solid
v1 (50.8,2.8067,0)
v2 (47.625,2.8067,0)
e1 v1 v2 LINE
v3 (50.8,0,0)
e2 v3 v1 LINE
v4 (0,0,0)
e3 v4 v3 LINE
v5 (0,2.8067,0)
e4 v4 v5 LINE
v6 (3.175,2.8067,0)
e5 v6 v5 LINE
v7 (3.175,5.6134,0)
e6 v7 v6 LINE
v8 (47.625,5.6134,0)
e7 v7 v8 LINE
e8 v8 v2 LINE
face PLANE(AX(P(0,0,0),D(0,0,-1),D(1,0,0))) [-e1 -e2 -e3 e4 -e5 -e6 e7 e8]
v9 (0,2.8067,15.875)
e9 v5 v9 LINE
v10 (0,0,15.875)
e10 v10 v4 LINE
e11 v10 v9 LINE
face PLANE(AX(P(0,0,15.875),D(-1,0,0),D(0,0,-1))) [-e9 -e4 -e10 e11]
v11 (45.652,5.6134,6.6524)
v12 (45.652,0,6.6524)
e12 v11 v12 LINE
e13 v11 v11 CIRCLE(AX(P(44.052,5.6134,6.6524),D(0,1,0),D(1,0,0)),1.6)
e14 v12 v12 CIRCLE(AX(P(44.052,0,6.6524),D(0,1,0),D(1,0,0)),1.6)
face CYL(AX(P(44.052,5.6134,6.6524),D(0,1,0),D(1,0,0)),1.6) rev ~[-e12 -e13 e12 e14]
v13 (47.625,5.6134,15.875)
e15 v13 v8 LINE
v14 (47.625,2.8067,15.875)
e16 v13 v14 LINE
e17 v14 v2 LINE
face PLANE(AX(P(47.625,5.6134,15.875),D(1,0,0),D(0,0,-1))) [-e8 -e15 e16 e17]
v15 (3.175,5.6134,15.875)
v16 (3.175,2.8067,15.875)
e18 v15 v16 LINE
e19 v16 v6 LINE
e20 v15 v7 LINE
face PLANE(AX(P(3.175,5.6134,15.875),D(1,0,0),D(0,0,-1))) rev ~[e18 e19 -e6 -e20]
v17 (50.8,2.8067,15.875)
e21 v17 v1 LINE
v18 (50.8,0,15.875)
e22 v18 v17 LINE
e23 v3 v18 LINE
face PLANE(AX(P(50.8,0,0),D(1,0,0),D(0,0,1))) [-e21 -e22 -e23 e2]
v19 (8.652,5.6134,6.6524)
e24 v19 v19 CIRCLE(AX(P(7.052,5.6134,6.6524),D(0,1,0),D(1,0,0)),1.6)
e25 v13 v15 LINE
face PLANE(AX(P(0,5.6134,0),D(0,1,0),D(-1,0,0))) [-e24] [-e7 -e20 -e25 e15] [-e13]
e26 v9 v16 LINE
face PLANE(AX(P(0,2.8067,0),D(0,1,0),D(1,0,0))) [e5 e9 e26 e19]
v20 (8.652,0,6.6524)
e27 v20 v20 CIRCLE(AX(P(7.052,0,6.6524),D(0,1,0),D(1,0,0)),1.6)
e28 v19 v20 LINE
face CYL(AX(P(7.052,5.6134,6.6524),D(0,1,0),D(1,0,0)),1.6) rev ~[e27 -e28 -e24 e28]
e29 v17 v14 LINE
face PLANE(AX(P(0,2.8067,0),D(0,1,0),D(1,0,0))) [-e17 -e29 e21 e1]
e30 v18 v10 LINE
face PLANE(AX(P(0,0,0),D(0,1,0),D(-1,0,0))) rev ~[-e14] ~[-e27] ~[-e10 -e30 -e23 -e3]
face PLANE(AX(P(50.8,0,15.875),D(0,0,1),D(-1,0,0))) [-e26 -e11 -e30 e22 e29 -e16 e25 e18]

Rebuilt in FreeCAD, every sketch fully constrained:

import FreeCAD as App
import Part
import Sketcher
Q = App.Units.Quantity

doc = App.newDocument("Part")
params = doc.addObject("Spreadsheet::Sheet", "Params")
for row, (alias, value) in enumerate([
    ("sketch1_width", "2 in"),
    ("sketch1_height", "0.625 in"),
    ("pad1_length", "0.221 in"),
    ("pocket1_length", "1 in"),
    ("sketch3_width", "0.125 in"),
    ("sketch3_height", "0.625 in"),
    ("pocket2_length", "0.1105 in"),
], start=1):
    params.set(f"A{row}", alias)
    params.set(f"B{row}", "=" + value)
    params.setAlias(f"B{row}", alias)

body = doc.addObject("PartDesign::Body", "Body")

sketch1 = body.newObject("Sketcher::SketchObject", "Sketch")
sketch1.AttachmentSupport = (doc.getObject("XZ_Plane"), [""])
sketch1.MapMode = "FlatFace"
sketch1.addGeometry([
    Part.LineSegment(App.Vector(51, 0, 0), App.Vector(0, 0, 0)),
    Part.LineSegment(App.Vector(0, 0, 0), App.Vector(0, 16, 0)),
    Part.LineSegment(App.Vector(0, 16, 0), App.Vector(51, 16, 0)),
    Part.LineSegment(App.Vector(51, 16, 0), App.Vector(51, 0, 0)),
], False)
sketch1.addConstraint([
    Sketcher.Constraint("Coincident", 0, 2, 1, 1),
    Sketcher.Constraint("Coincident", 1, 2, 2, 1),
    Sketcher.Constraint("Coincident", 2, 2, 3, 1),
    Sketcher.Constraint("Coincident", 3, 2, 0, 1),
    Sketcher.Constraint("Horizontal", 0),
    Sketcher.Constraint("Vertical", 1),
    Sketcher.Constraint("Horizontal", 2),
    Sketcher.Constraint("Vertical", 3),
    Sketcher.Constraint("Coincident", 0, 2, -1, 1),
    Sketcher.Constraint("DistanceX", 0, 2, 0, 1, Q("2 in")),
    Sketcher.Constraint("DistanceY", 1, 1, 1, 2, Q("0.625 in")),
])
sketch1.setExpression("Constraints[9]", "Params.sketch1_width")
sketch1.setExpression("Constraints[10]", "Params.sketch1_height")
pad1 = body.newObject("PartDesign::Pad", "Pad")
pad1.Profile = sketch1
pad1.setExpression("Length", "Params.pad1_length")
pad1.Reversed = True

sketch2 = body.newObject("Sketcher::SketchObject", "Sketch001")
sketch2.AttachmentSupport = (doc.getObject("XZ_Plane"), [""])
sketch2.MapMode = "FlatFace"
sketch2.AttachmentOffset = App.Placement(App.Vector(0, 0, -0.221 * 25.4), App.Rotation())
sketch2.addGeometry([
    Part.Circle(App.Vector(7.1, 6.7, 0), App.Vector(0, 0, 1), 1.6),
    Part.Circle(App.Vector(44.1, 6.7, 0), App.Vector(0, 0, 1), 1.6),
], False)
sketch2.addConstraint([
    Sketcher.Constraint("Equal", 0, 1),
    Sketcher.Constraint("Horizontal", 0, 3, 1, 3),
    Sketcher.Constraint("Diameter", 0, Q("3.2 mm")),
    Sketcher.Constraint("DistanceY", -1, 1, 0, 3, Q("0.2619 in")),
    Sketcher.Constraint("DistanceX", 0, 3, 1, 3, Q("1.4567 in")),
    Sketcher.Constraint("DistanceX", -1, 1, 0, 3, Q("7.052 mm")),
])
pocket1 = body.newObject("PartDesign::Pocket", "Pocket")
pocket1.Profile = sketch2
pocket1.setExpression("Length", "Params.pocket1_length")
pocket1.Reversed = True

sketch3 = body.newObject("Sketcher::SketchObject", "Sketch002")
sketch3.AttachmentSupport = (doc.getObject("XZ_Plane"), [""])
sketch3.MapMode = "FlatFace"
sketch3.AttachmentOffset = App.Placement(App.Vector(0, 0, -0.221 * 25.4), App.Rotation())
sketch3.addGeometry([
    Part.LineSegment(App.Vector(50.8, 15.9, 0), App.Vector(50.8, 0, 0)),
    Part.LineSegment(App.Vector(50.8, 0, 0), App.Vector(47.6, 0, 0)),
    Part.LineSegment(App.Vector(47.6, 0, 0), App.Vector(47.6, 15.9, 0)),
    Part.LineSegment(App.Vector(47.6, 15.9, 0), App.Vector(50.8, 15.9, 0)),
    Part.LineSegment(App.Vector(3.2, 15.9, 0), App.Vector(3.2, 0, 0)),
    Part.LineSegment(App.Vector(3.2, 0, 0), App.Vector(0, 0, 0)),
    Part.LineSegment(App.Vector(0, 0, 0), App.Vector(0, 15.9, 0)),
    Part.LineSegment(App.Vector(0, 15.9, 0), App.Vector(3.2, 15.9, 0)),
], False)
sketch3.addConstraint([
    Sketcher.Constraint("Coincident", 0, 2, 1, 1),
    Sketcher.Constraint("Coincident", 1, 2, 2, 1),
    Sketcher.Constraint("Coincident", 2, 2, 3, 1),
    Sketcher.Constraint("Coincident", 3, 2, 0, 1),
    Sketcher.Constraint("Coincident", 4, 2, 5, 1),
    Sketcher.Constraint("Coincident", 5, 2, 6, 1),
    Sketcher.Constraint("Coincident", 6, 2, 7, 1),
    Sketcher.Constraint("Coincident", 7, 2, 4, 1),
    Sketcher.Constraint("Vertical", 0),
    Sketcher.Constraint("Horizontal", 1),
    Sketcher.Constraint("Vertical", 2),
    Sketcher.Constraint("Horizontal", 3),
    Sketcher.Constraint("Vertical", 4),
    Sketcher.Constraint("Horizontal", 5),
    Sketcher.Constraint("Vertical", 6),
    Sketcher.Constraint("Horizontal", 7),
    Sketcher.Constraint("Coincident", 5, 2, -1, 1),
    Sketcher.Constraint("PointOnObject", 0, 2, -1),
    Sketcher.Constraint("Horizontal", 3, 2, 6, 2),
    Sketcher.Constraint("Equal", 3, 5),
    Sketcher.Constraint("DistanceX", 1, 2, 1, 1, Q("0.125 in")),
    Sketcher.Constraint("DistanceX", -1, 1, 0, 2, Q("2 in")),
    Sketcher.Constraint("DistanceY", 0, 2, 0, 1, Q("0.625 in")),
])
sketch3.setExpression("Constraints[20]", "Params.sketch3_width")
sketch3.setExpression("Constraints[22]", "Params.sketch3_height")
pocket2 = body.newObject("PartDesign::Pocket", "Pocket001")
pocket2.Profile = sketch3
pocket2.setExpression("Length", "Params.pocket2_length")
pocket2.Reversed = True

doc.recompute()
